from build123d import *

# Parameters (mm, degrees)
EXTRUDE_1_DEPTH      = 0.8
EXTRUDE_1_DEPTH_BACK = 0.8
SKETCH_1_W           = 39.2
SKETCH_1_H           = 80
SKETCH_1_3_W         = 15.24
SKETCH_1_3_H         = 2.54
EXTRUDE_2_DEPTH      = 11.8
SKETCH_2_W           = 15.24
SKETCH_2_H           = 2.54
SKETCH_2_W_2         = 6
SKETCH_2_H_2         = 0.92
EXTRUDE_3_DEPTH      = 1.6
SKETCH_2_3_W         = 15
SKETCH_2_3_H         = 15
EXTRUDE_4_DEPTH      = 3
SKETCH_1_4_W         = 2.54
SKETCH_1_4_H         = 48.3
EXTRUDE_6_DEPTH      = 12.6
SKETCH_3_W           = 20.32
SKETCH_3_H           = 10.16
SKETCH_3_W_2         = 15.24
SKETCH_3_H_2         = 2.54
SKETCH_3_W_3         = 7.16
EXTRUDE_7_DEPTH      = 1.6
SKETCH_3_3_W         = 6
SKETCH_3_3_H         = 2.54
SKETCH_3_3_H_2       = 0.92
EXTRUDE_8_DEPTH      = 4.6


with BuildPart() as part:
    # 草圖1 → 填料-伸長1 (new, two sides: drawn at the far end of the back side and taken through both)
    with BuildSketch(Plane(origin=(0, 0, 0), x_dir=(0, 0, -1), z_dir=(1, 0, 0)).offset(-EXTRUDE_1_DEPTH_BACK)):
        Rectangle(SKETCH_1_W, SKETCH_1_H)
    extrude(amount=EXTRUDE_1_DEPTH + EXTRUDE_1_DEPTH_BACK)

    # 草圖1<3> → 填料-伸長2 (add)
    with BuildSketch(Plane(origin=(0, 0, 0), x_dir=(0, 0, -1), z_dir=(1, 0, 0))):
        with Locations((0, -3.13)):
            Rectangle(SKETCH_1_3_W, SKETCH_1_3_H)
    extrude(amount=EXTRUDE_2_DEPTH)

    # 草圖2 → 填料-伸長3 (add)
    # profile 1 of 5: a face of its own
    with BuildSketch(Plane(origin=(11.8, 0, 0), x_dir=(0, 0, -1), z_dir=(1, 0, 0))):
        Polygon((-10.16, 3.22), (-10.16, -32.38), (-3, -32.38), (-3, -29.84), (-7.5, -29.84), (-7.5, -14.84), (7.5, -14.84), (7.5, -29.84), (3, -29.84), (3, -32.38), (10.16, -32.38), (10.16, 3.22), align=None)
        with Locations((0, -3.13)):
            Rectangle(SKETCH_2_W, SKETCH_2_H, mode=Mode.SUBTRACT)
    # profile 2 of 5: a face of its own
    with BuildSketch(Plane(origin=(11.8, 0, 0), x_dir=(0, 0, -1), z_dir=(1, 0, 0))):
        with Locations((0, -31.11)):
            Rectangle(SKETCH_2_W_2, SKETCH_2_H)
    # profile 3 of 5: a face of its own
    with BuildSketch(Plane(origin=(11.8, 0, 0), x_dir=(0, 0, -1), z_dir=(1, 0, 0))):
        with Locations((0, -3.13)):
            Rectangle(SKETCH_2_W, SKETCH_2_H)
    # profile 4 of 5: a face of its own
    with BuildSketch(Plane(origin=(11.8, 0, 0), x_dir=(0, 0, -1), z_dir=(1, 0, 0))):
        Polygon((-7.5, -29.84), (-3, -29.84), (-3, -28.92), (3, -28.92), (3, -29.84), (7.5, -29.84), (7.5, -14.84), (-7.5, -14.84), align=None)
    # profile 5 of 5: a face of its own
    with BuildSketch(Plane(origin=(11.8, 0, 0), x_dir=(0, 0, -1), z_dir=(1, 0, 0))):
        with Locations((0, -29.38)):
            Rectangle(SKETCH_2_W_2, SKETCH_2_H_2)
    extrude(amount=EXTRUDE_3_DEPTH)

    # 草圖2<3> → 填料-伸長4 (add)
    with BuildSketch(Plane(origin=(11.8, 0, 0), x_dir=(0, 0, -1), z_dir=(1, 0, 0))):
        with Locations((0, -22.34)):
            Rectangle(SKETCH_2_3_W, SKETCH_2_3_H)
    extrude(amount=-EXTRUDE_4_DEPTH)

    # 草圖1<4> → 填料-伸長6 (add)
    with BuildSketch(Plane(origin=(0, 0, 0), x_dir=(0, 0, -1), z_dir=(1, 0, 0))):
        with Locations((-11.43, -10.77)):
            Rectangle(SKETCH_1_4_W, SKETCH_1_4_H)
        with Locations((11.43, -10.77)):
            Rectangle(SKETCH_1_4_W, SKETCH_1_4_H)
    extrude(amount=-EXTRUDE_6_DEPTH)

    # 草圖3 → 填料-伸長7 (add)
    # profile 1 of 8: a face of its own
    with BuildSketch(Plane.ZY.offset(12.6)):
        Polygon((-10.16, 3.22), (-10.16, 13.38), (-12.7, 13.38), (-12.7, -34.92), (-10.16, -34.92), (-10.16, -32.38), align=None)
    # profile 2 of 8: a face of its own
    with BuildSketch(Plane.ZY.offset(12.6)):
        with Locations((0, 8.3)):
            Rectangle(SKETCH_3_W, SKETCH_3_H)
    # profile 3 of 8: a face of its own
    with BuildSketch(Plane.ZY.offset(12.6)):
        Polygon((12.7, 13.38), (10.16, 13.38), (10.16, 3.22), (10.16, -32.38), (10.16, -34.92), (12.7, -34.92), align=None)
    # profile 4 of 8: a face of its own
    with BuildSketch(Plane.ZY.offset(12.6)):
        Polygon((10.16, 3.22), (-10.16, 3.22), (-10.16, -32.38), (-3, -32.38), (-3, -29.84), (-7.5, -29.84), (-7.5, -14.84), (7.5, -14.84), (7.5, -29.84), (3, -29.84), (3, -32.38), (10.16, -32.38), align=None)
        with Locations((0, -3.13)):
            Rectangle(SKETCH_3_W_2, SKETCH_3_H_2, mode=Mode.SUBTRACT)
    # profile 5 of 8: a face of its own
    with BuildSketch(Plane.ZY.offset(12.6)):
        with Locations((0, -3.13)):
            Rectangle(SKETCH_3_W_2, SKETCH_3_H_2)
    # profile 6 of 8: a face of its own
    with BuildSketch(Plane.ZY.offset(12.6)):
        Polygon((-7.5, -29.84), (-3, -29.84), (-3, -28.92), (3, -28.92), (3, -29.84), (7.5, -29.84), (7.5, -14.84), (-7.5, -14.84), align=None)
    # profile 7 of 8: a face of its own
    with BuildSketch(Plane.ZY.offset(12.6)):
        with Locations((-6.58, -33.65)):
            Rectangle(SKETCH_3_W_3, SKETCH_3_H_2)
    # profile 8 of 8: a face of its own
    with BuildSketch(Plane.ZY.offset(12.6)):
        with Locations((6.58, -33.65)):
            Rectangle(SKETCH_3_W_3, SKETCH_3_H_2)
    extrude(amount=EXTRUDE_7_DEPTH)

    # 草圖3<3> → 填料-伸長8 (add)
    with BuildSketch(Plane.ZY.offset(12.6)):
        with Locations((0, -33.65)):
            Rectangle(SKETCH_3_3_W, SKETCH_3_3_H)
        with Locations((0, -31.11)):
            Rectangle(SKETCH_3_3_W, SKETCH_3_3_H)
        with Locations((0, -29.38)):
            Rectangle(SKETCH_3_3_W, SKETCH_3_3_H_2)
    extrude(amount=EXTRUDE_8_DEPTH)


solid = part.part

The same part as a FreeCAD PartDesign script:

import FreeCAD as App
import Part
import Sketcher

V = App.Vector
Q = App.Units.Quantity


def add_polygon(sketch, points):
    """Adds a closed chain of lines whose ends are joined by coincident constraints."""
    first, n = sketch.GeometryCount, len(points)
    for a, b in zip(points, points[1:] + points[:1]):
        sketch.addGeometry(Part.LineSegment(App.Vector(*a, 0), App.Vector(*b, 0)), False)
    for i in range(n):
        sketch.addConstraint(Sketcher.Constraint("Coincident", first + i, 2, first + (i + 1) % n, 1))

doc = App.newDocument("Part")
params = doc.addObject("Spreadsheet::Sheet", "Params")
for row, (alias, value) in enumerate([
    ("sketch1_width", "80 mm"),
    ("sketch1_height", "39.2 mm"),
    ("pad1_length", "0.8 mm"),
    ("pad1_length2", "0.8 mm"),
    ("sketch2_width", "2.54 mm"),
    ("sketch2_height", "15.24 mm"),
    ("pad2_length", "11.8 mm"),
    ("sketch3_width", "35.6 mm"),
    ("sketch3_height", "20.32 mm"),
    ("pad3_length", "1.6 mm"),
    ("sketch4_width", "15 mm"),
    ("pad4_length", "3 mm"),
    ("sketch5_width", "48.3 mm"),
    ("sketch5_height", "2.54 mm"),
    ("pad5_length", "12.6 mm"),
    ("sketch6_width", "6 mm"),
    ("sketch6_width2", "48.3 mm"),
    ("sketch6_height", "9.7 mm"),
    ("pad6_length", "1.6 mm"),
    ("sketch7_width", "6 mm"),
    ("pad7_length", "4.6 mm"),
], start=1):
    params.set(f"A{row}", alias)
    params.set(f"B{row}", "=" + value)
    params.setAlias(f"B{row}", alias)

body = doc.addObject("PartDesign::Body", "Body")

# Sketch on YZ plane
sketch1 = body.newObject("Sketcher::SketchObject", "Sketch")
sketch1.AttachmentSupport = (doc.getObject("YZ_Plane"), [""])
sketch1.MapMode = "FlatFace"
add_polygon(sketch1, [(40, 20), (-40, 20), (-40, -20), (40, -20)])  # lines 0-3
sketch1.addConstraint([
    Sketcher.Constraint("Horizontal", 0),
    Sketcher.Constraint("Vertical", 1),
    Sketcher.Constraint("Horizontal", 2),
    Sketcher.Constraint("Vertical", 3),
    Sketcher.Constraint("Symmetric", 0, 2, 2, 2, -1, 1),
    Sketcher.Constraint("DistanceX", 0, 2, 0, 1, Q("80 mm")),
    Sketcher.Constraint("DistanceY", 1, 2, 1, 1, Q("39.2 mm")),
])
sketch1.setExpression("Constraints[9]", "Params.sketch1_width")
sketch1.setExpression("Constraints[10]", "Params.sketch1_height")
pad1 = body.newObject("PartDesign::Pad", "Pad")
pad1.Profile = sketch1
pad1.Type = "TwoLengths"
pad1.setExpression("Length", "Params.pad1_length")
pad1.setExpression("Length2", "Params.pad1_length2")

# Sketch on YZ plane
sketch2 = body.newObject("Sketcher::SketchObject", "Sketch001")
sketch2.AttachmentSupport = (doc.getObject("YZ_Plane"), [""])
sketch2.MapMode = "FlatFace"
add_polygon(sketch2, [(-1.9, 7.6), (-4.4, 7.6), (-4.4, -7.6), (-1.9, -7.6)])  # lines 0-3
sketch2.addConstraint([
    Sketcher.Constraint("Horizontal", 0),
    Sketcher.Constraint("Vertical", 1),
    Sketcher.Constraint("Horizontal", 2),
    Sketcher.Constraint("Vertical", 3),
    Sketcher.Constraint("DistanceX", 0, 2, 0, 1, Q("2.54 mm")),
    Sketcher.Constraint("DistanceY", 1, 2, 1, 1, Q("15.24 mm")),
    Sketcher.Constraint("DistanceX", 0, 2, -1, 1, Q("4.4 mm")),
    Sketcher.Constraint("DistanceY", -1, 1, 0, 2, Q("7.62 mm")),
])
sketch2.setExpression("Constraints[8]", "Params.sketch2_width")
sketch2.setExpression("Constraints[9]", "Params.sketch2_height")
pad2 = body.newObject("PartDesign::Pad", "Pad001")
pad2.Profile = sketch2
pad2.setExpression("Length", "Params.pad2_length")

# Sketch on YZ plane
sketch3 = body.newObject("Sketcher::SketchObject", "Sketch002")
sketch3.AttachmentSupport = (doc.getObject("YZ_Plane"), [""])
sketch3.MapMode = "FlatFace"
sketch3.AttachmentOffset = App.Placement(V(0, 0, 11.8), App.Rotation())
add_polygon(sketch3, [(3, 10), (-32, 10), (-32, -10), (3, -10)])  # lines 0-3
sketch3.addConstraint([
    Sketcher.Constraint("Horizontal", 0),
    Sketcher.Constraint("Vertical", 1),
    Sketcher.Constraint("Horizontal", 2),
    Sketcher.Constraint("Vertical", 3),
    Sketcher.Constraint("DistanceX", 0, 2, 0, 1, Q("35.6 mm")),
    Sketcher.Constraint("DistanceY", 1, 2, 1, 1, Q("20.32 mm")),
    Sketcher.Constraint("DistanceX", 0, 2, -1, 1, Q("32.38 mm")),
    Sketcher.Constraint("DistanceY", -1, 1, 0, 2, Q("10.16 mm")),
])
sketch3.setExpression("Constraints[8]", "Params.sketch3_width")
sketch3.setExpression("Constraints[9]", "Params.sketch3_height")
pad3 = body.newObject("PartDesign::Pad", "Pad002")
pad3.Profile = sketch3
pad3.setExpression("Length", "Params.pad3_length")

# Sketch on YZ plane
sketch4 = body.newObject("Sketcher::SketchObject", "Sketch003")
sketch4.AttachmentSupport = (doc.getObject("YZ_Plane"), [""])
sketch4.MapMode = "FlatFace"
sketch4.AttachmentOffset = App.Placement(V(0, 0, 11.8), App.Rotation())
add_polygon(sketch4, [(-15, 8), (-30, 8), (-30, -8), (-15, -8)])  # lines 0-3
sketch4.addConstraint([
    Sketcher.Constraint("Horizontal", 0),
    Sketcher.Constraint("Vertical", 1),
    Sketcher.Constraint("Horizontal", 2),
    Sketcher.Constraint("Vertical", 3),
    Sketcher.Constraint("Equal", 2, 1),
    Sketcher.Constraint("DistanceX", 0, 2, 0, 1, Q("15 mm")),
    Sketcher.Constraint("DistanceY", -1, 1, 0, 2, Q("7.5 mm")),
    Sketcher.Constraint("DistanceX", 0, 2, -1, 1, Q("29.84 mm")),
])
sketch4.setExpression("Constraints[9]", "Params.sketch4_width")
pad4 = body.newObject("PartDesign::Pad", "Pad003")
pad4.Profile = sketch4
pad4.setExpression("Length", "Params.pad4_length")
pad4.Reversed = True

# Sketch on YZ plane
sketch5 = body.newObject("Sketcher::SketchObject", "Sketch004")
sketch5.AttachmentSupport = (doc.getObject("YZ_Plane"), [""])
sketch5.MapMode = "FlatFace"
add_polygon(sketch5, [(13.4, 12.7), (-34.9, 12.7), (-34.9, 10.2), (13.4, 10.2)])  # lines 0-3
add_polygon(sketch5, [(13.4, -10.2), (-34.9, -10.2), (-34.9, -12.7), (13.4, -12.7)])  # lines 4-7
sketch5.addConstraint([
    Sketcher.Constraint("Horizontal", 0),
    Sketcher.Constraint("Vertical", 1),
    Sketcher.Constraint("Horizontal", 2),
    Sketcher.Constraint("Vertical", 3),
    Sketcher.Constraint("Horizontal", 4),
    Sketcher.Constraint("Vertical", 5),
    Sketcher.Constraint("Horizontal", 6),
    Sketcher.Constraint("Vertical", 7),
    Sketcher.Constraint("Symmetric", 1, 2, 4, 2, -1),
    Sketcher.Constraint("Symmetric", 3, 2, 6, 2, -1),
    Sketcher.Constraint("DistanceX", 0, 2, 0, 1, Q("48.3 mm")),
    Sketcher.Constraint("DistanceY", 1, 2, 1, 1, Q("2.54 mm")),
    Sketcher.Constraint("DistanceY", -1, 1, 0, 2, Q("12.7 mm")),
    Sketcher.Constraint("DistanceX", 0, 2, -1, 1, Q("34.92 mm")),
])
sketch5.setExpression("Constraints[18]", "Params.sketch5_width")
sketch5.setExpression("Constraints[19]", "Params.sketch5_height")
pad5 = body.newObject("PartDesign::Pad", "Pad004")
pad5.Profile = sketch5
pad5.setExpression("Length", "Params.pad5_length")
pad5.Reversed = True

# Sketch on YZ plane
sketch6 = body.newObject("Sketcher::SketchObject", "Sketch005")
sketch6.AttachmentSupport = (doc.getObject("YZ_Plane"), [""])
sketch6.MapMode = "FlatFace"
sketch6.AttachmentOffset = App.Placement(V(0, 0, -12.6), App.Rotation())
add_polygon(sketch6, [(13, -13), (-35, -13), (-35, -3), (-29, -3), (-29, 3), (-35, 3), (-35, 13), (13, 13)])  # lines 0-7
sketch6.addConstraint([
    Sketcher.Constraint("Horizontal", 0),
    Sketcher.Constraint("Vertical", 1),
    Sketcher.Constraint("Horizontal", 2),
    Sketcher.Constraint("Vertical", 3),
    Sketcher.Constraint("Horizontal", 4),
    Sketcher.Constraint("Vertical", 5),
    Sketcher.Constraint("Horizontal", 6),
    Sketcher.Constraint("Vertical", 7),
    Sketcher.Constraint("Symmetric", 1, 2, 4, 2, -1),
    Sketcher.Constraint("Equal", 4, 3),
    Sketcher.Constraint("Equal", 1, 5),
    Sketcher.Constraint("DistanceX", 2, 1, 2, 2, Q("6 mm")),
    Sketcher.Constraint("DistanceX", 0, 2, 0, 1, Q("48.3 mm")),
    Sketcher.Constraint("DistanceY", 1, 1, 1, 2, Q("9.7 mm")),
    Sketcher.Constraint("DistanceX", 0, 2, -1, 1, Q("34.92 mm")),
])
sketch6.setExpression("Constraints[19]", "Params.sketch6_width")
sketch6.setExpression("Constraints[20]", "Params.sketch6_width2")
sketch6.setExpression("Constraints[21]", "Params.sketch6_height")
pad6 = body.newObject("PartDesign::Pad", "Pad005")
pad6.Profile = sketch6
pad6.setExpression("Length", "Params.pad6_length")
pad6.Reversed = True

# Sketch on YZ plane
sketch7 = body.newObject("Sketcher::SketchObject", "Sketch006")
sketch7.AttachmentSupport = (doc.getObject("YZ_Plane"), [""])
sketch7.MapMode = "FlatFace"
sketch7.AttachmentOffset = App.Placement(V(0, 0, -12.6), App.Rotation())
add_polygon(sketch7, [(-35, -3), (-35, 3), (-29, 3), (-29, -3)])  # lines 0-3
sketch7.addConstraint([
    Sketcher.Constraint("Vertical", 0),
    Sketcher.Constraint("Horizontal", 1),
    Sketcher.Constraint("Vertical", 2),
    Sketcher.Constraint("Horizontal", 3),
    Sketcher.Constraint("Equal", 3, 0),
    Sketcher.Constraint("DistanceX", 1, 1, 1, 2, Q("6 mm")),
    Sketcher.Constraint("DistanceY", -1, 1, 0, 2, Q("3 mm")),
    Sketcher.Constraint("DistanceX", 0, 2, -1, 1, Q("34.92 mm")),
])
sketch7.setExpression("Constraints[9]", "Params.sketch7_width")
pad7 = body.newObject("PartDesign::Pad", "Pad006")
pad7.Profile = sketch7
pad7.setExpression("Length", "Params.pad7_length")
pad7.Reversed = True

doc.recompute()
